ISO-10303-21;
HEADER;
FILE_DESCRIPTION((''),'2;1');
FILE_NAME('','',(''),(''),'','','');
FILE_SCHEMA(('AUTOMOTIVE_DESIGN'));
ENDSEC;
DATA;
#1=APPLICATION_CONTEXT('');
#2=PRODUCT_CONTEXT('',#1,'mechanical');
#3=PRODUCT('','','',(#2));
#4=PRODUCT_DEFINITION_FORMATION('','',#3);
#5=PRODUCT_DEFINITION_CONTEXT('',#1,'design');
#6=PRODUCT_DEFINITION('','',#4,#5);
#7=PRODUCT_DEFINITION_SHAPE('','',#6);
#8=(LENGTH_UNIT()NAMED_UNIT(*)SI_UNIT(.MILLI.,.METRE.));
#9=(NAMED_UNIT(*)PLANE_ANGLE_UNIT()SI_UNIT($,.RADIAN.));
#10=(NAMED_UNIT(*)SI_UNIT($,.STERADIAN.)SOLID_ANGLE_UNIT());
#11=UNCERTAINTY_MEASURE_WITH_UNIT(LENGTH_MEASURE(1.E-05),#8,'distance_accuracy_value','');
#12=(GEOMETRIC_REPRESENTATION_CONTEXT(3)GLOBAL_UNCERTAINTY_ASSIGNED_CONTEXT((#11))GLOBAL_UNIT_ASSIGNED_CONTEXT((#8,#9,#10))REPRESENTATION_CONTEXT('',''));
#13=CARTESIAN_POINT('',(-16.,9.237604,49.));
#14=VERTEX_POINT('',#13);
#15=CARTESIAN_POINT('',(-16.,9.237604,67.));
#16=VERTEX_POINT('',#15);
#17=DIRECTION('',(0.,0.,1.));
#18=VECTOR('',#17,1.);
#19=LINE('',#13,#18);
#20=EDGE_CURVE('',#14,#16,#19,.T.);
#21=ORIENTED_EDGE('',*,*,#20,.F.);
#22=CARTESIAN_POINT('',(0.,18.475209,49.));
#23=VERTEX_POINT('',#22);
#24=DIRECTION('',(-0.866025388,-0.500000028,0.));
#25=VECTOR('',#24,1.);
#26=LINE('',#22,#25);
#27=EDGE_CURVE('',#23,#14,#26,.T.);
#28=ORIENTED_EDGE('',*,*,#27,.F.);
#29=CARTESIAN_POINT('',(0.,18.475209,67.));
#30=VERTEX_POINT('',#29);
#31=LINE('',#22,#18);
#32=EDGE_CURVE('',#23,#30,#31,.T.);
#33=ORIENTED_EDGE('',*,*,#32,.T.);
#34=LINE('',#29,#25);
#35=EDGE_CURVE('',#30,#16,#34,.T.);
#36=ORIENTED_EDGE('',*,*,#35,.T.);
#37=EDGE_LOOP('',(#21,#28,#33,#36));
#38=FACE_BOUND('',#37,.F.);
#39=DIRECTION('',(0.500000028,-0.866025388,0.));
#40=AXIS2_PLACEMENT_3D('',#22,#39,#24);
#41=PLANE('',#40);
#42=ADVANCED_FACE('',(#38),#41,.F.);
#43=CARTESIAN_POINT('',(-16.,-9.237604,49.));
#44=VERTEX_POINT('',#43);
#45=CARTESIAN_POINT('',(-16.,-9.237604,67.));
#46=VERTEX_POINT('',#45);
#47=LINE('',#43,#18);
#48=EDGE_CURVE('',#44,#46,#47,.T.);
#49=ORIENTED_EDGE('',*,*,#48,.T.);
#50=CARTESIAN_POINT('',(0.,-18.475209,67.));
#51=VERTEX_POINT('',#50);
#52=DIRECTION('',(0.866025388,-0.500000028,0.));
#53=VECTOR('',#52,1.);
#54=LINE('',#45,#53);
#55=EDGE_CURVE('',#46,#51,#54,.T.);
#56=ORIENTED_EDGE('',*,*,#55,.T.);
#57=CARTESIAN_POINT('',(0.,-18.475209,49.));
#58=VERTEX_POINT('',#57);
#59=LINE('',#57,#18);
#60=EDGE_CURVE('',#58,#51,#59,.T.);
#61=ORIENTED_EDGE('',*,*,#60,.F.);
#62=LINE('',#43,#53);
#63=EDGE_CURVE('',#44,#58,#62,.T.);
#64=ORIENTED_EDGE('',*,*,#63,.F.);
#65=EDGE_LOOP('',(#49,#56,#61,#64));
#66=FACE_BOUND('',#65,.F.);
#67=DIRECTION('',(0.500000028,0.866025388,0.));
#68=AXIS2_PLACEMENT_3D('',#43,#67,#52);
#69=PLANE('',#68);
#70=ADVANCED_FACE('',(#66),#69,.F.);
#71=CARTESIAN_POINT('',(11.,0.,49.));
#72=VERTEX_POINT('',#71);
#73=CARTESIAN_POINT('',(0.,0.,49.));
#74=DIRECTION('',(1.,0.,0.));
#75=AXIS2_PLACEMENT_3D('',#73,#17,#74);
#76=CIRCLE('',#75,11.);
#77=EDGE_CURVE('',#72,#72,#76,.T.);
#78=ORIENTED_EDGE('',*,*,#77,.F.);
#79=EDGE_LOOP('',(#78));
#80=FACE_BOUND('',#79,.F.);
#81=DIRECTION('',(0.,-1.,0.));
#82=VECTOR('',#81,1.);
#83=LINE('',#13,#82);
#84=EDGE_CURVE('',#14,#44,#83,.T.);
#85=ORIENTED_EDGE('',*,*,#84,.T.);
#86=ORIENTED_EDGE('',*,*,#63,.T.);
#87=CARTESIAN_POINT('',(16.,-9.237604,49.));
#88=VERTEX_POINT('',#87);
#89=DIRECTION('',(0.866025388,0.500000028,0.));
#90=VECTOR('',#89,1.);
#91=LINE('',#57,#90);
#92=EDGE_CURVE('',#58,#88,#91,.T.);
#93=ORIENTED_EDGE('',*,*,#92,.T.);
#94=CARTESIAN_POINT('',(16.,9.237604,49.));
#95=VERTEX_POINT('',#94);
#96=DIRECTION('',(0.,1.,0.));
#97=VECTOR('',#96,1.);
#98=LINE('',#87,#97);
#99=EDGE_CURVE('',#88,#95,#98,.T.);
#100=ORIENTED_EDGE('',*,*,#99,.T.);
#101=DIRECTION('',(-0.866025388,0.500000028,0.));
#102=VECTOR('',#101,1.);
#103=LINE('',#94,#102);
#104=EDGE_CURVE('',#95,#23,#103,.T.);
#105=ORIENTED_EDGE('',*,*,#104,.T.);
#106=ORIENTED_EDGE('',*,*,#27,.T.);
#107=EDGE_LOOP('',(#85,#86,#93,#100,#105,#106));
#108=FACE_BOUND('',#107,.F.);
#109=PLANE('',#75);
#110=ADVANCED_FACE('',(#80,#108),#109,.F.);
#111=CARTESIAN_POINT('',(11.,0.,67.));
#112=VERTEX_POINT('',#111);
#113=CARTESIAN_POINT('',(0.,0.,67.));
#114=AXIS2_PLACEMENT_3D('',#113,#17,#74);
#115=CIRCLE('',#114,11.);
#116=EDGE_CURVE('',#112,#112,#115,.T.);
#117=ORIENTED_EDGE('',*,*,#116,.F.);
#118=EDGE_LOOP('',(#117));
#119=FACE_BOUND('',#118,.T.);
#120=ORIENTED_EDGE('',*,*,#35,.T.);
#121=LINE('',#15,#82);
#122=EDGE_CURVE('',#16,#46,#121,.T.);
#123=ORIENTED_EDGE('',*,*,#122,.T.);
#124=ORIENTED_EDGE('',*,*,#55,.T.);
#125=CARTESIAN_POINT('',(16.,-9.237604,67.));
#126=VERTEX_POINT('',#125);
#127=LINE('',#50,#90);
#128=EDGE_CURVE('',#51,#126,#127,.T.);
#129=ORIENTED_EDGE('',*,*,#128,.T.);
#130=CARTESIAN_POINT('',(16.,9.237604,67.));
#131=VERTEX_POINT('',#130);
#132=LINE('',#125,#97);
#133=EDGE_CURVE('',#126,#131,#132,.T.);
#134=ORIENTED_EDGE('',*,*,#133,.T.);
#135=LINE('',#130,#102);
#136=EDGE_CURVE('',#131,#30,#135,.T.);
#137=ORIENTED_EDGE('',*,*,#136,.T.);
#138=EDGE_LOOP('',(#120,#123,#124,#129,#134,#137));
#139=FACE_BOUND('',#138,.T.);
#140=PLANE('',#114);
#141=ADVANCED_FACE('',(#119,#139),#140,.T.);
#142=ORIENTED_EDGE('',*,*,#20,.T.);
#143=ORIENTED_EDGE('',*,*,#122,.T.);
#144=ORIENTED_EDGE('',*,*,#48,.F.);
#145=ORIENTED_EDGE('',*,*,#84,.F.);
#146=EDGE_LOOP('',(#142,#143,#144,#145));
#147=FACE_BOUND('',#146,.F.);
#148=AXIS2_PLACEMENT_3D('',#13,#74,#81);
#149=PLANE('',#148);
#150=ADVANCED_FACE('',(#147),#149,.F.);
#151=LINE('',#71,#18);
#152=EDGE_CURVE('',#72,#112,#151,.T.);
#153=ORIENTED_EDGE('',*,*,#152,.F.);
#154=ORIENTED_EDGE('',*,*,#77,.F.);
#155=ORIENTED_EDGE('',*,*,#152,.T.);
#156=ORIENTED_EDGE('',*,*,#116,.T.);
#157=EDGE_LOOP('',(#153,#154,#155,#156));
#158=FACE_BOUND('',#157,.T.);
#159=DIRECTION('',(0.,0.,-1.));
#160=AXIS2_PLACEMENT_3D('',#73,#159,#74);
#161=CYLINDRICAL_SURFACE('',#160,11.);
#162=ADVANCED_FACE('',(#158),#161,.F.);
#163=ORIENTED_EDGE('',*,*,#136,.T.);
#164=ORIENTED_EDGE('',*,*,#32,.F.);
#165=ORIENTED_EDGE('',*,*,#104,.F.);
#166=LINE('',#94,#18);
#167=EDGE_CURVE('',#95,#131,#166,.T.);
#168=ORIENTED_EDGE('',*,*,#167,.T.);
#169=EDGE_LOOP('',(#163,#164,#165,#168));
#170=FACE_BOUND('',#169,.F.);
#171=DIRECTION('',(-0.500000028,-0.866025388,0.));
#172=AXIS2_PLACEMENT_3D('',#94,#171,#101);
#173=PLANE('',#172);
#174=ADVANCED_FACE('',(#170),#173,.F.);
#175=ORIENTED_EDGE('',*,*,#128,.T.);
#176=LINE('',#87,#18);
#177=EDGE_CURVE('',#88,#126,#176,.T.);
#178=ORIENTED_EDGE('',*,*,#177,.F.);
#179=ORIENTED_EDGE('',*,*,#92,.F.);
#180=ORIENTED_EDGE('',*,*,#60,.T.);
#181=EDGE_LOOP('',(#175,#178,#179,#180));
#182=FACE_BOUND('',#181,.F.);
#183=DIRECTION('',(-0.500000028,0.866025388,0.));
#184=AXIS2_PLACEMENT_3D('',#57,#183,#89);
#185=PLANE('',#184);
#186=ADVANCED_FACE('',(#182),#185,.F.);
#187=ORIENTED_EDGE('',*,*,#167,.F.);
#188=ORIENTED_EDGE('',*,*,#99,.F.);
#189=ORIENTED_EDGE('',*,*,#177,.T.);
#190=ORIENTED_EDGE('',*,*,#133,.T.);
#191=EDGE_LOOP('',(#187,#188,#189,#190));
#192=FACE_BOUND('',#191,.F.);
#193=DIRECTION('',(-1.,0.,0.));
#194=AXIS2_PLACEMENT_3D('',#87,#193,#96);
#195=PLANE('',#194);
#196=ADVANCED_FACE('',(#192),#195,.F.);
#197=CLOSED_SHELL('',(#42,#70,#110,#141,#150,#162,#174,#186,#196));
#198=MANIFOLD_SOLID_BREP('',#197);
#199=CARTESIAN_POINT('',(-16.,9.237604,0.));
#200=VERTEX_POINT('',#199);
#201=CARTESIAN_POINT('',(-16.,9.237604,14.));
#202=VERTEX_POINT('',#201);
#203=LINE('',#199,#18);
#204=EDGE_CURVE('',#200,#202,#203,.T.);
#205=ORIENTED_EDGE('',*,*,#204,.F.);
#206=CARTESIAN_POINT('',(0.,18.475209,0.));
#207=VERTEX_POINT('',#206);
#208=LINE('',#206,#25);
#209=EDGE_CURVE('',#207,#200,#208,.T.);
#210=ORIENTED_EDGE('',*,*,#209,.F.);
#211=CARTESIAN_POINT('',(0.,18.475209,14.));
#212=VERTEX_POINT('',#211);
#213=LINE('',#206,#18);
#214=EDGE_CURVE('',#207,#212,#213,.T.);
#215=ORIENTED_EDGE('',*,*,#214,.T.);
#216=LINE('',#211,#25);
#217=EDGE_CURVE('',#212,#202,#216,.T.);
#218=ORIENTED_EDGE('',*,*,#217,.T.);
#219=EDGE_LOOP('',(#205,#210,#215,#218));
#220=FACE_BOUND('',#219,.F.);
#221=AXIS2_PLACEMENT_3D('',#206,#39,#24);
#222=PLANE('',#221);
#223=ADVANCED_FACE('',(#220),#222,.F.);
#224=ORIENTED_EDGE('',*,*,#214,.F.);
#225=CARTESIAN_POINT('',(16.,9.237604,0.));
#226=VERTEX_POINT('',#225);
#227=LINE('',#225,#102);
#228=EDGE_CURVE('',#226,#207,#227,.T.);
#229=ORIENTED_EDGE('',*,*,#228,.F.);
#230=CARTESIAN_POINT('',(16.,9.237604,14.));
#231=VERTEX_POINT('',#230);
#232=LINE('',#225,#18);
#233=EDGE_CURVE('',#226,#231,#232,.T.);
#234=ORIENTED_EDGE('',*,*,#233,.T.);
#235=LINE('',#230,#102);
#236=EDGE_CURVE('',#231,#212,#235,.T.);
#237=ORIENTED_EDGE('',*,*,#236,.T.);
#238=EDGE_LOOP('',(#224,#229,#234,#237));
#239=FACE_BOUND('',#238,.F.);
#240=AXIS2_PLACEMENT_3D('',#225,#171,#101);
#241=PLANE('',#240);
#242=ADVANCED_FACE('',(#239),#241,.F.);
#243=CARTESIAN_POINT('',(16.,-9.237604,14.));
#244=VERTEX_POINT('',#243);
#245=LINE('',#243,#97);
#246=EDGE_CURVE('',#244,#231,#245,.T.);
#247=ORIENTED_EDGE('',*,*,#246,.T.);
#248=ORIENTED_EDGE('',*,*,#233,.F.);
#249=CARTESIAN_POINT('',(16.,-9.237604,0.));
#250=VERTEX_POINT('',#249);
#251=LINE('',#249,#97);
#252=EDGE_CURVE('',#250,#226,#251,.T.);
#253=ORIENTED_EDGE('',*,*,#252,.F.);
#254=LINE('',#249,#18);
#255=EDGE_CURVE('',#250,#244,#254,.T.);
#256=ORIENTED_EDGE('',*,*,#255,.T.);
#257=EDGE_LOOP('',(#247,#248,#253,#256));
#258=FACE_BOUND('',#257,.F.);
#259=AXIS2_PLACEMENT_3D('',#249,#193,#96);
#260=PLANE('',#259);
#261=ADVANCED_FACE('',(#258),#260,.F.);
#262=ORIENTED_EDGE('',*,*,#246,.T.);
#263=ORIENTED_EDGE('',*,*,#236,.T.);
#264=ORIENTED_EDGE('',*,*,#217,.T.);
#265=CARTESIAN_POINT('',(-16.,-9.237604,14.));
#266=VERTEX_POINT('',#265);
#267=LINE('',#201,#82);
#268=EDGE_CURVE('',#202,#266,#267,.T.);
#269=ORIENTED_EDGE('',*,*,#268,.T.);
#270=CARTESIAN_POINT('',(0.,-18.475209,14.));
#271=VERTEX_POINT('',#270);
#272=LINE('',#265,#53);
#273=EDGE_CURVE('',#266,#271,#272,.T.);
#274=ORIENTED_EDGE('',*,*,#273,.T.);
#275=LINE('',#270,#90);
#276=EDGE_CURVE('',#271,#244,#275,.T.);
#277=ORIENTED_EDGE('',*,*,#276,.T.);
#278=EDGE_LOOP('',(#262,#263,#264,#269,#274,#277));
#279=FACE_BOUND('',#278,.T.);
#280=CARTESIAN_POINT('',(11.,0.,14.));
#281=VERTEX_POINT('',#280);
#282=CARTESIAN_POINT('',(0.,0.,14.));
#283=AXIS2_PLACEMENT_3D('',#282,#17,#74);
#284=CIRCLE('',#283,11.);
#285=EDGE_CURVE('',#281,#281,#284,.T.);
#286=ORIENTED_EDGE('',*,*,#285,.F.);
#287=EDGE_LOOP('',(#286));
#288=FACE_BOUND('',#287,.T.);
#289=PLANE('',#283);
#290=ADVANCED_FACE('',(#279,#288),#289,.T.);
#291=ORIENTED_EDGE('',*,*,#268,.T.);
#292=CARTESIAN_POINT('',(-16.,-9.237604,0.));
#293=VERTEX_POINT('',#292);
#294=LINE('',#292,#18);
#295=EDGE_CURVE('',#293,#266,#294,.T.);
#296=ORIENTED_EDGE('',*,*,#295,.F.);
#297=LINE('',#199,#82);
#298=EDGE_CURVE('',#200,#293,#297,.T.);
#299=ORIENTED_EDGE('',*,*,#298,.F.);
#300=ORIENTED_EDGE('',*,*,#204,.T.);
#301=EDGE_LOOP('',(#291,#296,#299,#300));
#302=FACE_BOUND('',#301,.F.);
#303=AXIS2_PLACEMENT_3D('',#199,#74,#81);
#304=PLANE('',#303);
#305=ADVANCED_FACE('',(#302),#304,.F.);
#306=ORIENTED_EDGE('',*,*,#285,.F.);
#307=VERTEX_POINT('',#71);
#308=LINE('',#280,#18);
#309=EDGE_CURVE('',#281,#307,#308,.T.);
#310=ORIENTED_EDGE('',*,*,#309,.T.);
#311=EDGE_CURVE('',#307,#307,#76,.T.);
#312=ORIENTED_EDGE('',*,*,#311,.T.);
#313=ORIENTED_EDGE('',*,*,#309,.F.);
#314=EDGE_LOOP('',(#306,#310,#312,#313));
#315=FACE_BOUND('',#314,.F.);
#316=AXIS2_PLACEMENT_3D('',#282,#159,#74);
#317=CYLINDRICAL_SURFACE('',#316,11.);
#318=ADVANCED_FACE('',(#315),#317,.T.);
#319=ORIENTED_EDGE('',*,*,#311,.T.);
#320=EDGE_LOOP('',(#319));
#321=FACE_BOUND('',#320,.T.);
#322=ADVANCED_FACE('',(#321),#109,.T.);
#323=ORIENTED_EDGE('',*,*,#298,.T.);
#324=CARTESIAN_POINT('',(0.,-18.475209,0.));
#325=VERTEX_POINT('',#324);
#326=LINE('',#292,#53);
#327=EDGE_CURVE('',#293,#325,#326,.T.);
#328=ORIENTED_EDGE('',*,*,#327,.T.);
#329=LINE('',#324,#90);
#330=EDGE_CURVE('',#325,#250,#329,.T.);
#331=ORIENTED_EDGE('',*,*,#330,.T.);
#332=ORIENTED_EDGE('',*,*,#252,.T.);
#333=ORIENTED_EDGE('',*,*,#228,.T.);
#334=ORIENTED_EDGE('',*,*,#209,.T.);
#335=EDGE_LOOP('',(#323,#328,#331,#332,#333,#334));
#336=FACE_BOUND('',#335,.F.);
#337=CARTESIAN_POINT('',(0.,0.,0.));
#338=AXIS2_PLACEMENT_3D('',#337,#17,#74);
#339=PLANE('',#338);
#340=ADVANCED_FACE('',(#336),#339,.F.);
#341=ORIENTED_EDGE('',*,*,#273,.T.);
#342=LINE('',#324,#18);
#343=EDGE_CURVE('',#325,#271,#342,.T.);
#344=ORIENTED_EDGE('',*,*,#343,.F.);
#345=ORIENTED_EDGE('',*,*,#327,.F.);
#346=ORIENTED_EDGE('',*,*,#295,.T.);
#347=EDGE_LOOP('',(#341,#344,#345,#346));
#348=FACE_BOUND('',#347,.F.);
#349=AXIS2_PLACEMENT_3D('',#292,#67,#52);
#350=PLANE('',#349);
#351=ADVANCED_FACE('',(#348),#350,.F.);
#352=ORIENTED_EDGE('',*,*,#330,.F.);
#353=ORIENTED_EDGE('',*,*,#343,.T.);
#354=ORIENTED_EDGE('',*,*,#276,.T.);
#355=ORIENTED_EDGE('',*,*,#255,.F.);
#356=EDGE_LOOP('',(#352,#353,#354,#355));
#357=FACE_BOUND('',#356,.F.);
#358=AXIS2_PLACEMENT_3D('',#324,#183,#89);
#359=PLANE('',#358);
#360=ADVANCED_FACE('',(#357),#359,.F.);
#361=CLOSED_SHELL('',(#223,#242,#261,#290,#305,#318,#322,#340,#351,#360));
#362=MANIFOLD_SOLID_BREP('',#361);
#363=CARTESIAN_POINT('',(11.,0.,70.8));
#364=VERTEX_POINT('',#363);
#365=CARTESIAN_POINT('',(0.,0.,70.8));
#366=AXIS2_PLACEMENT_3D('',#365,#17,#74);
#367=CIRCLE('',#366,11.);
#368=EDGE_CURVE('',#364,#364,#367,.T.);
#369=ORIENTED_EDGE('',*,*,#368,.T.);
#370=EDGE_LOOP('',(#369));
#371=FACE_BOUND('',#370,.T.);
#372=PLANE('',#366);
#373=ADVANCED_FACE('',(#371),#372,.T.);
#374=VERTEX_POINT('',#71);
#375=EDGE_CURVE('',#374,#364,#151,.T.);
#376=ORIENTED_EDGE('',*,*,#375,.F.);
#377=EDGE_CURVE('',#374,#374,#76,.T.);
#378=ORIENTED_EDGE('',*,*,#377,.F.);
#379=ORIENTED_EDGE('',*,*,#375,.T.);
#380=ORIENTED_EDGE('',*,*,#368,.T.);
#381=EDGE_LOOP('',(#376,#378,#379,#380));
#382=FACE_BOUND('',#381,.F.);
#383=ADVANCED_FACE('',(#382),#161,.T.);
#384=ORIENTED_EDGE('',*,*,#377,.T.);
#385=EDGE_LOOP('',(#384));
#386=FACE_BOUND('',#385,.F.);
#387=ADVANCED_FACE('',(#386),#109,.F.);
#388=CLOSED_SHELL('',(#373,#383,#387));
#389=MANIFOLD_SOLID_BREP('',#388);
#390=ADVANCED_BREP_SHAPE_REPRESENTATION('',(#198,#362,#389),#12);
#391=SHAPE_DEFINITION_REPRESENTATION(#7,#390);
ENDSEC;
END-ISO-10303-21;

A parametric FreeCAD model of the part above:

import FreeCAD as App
import Part
import Sketcher

V = App.Vector
Q = App.Units.Quantity


def add_polygon(sketch, points):
    """Adds a closed chain of lines whose ends are joined by coincident constraints."""
    first, n = sketch.GeometryCount, len(points)
    for a, b in zip(points, points[1:] + points[:1]):
        sketch.addGeometry(Part.LineSegment(App.Vector(*a, 0), App.Vector(*b, 0)), False)
    for i in range(n):
        sketch.addConstraint(Sketcher.Constraint("Coincident", first + i, 2, first + (i + 1) % n, 1))

doc = App.newDocument("Part")
body = doc.addObject("PartDesign::Body", "Body")

# Sketch on XY plane
sketch1 = body.newObject("Sketcher::SketchObject", "Sketch")
sketch1.AttachmentSupport = (doc.getObject("XY_Plane"), [""])
sketch1.MapMode = "FlatFace"
add_polygon(sketch1, [(16, -9.237604), (16, 9.237604), (0, 18.475209), (-16, 9.237604), (-16, -9.237604), (0, -18.475209)])  # lines 0-5
sketch1.addConstraint(Sketcher.Constraint("Vertical", 0))
sketch1.addConstraint(Sketcher.Constraint("Vertical", 3))
sketch1.addConstraint(Sketcher.Constraint("Symmetric", 0, 2, 3, 2, -1, 1))
sketch1.addConstraint(Sketcher.Constraint("Symmetric", 1, 2, 4, 2, -1, 1))
sketch1.addConstraint(Sketcher.Constraint("PointOnObject", 1, 2, -2))
sketch1.addConstraint(Sketcher.Constraint("Parallel", 2, 5))
sketch1.addConstraint(Sketcher.Constraint("Horizontal", 0, 2, 2, 2))
sketch1.addConstraint(Sketcher.Constraint("Angle", 1, Q("149.999998 deg")))
sketch1.addConstraint(Sketcher.Constraint("DistanceX", -1, 1, 0, 2, 16.0))
sketch1.addConstraint(Sketcher.Constraint("DistanceY", 0, 1, 0, 2, 18.475208))
pad1 = body.newObject("PartDesign::Pad", "Pad")
pad1.Profile = sketch1
pad1.Length = 14

# Sketch on XY plane
sketch2 = body.newObject("Sketcher::SketchObject", "Sketch001")
sketch2.AttachmentSupport = (doc.getObject("XY_Plane"), [""])
sketch2.MapMode = "FlatFace"
sketch2.AttachmentOffset = App.Placement(V(0, 0, 14), App.Rotation())
sketch2.addGeometry(Part.Circle(V(0, 0, 0), V(0, 0, 1), 11), False)
sketch2.addConstraint(Sketcher.Constraint("Coincident", 0, 3, -1, 1))
sketch2.addConstraint(Sketcher.Constraint("Diameter", 0, 22.0))
pad2 = body.newObject("PartDesign::Pad", "Pad001")
pad2.Profile = sketch2
pad2.Length = 35
body2 = doc.addObject("PartDesign::Body", "Body001")

# Sketch on XY plane
sketch3 = body2.newObject("Sketcher::SketchObject", "Sketch002")
sketch3.AttachmentSupport = (doc.getObject("XY_Plane001"), [""])
sketch3.MapMode = "FlatFace"
sketch3.AttachmentOffset = App.Placement(V(0, 0, 49), App.Rotation())
add_polygon(sketch3, [(16, -9.237604), (16, 9.237604), (0, 18.475209), (-16, 9.237604), (-16, -9.237604), (0, -18.475209)])  # lines 0-5
sketch3.addGeometry(Part.Circle(V(0, 0, 0), V(0, 0, 1), 11), False)  # 6
sketch3.addConstraint(Sketcher.Constraint("Vertical", 0))
sketch3.addConstraint(Sketcher.Constraint("Vertical", 3))
sketch3.addConstraint(Sketcher.Constraint("Coincident", 6, 3, -1, 1))
sketch3.addConstraint(Sketcher.Constraint("Symmetric", 0, 2, 3, 2, -1, 1))
sketch3.addConstraint(Sketcher.Constraint("Symmetric", 1, 2, 4, 2, -1, 1))
sketch3.addConstraint(Sketcher.Constraint("PointOnObject", 1, 2, -2))
sketch3.addConstraint(Sketcher.Constraint("Parallel", 2, 5))
sketch3.addConstraint(Sketcher.Constraint("Horizontal", 0, 2, 2, 2))
sketch3.addConstraint(Sketcher.Constraint("Diameter", 6, 22.0))
sketch3.addConstraint(Sketcher.Constraint("Angle", 1, Q("149.999998 deg")))
sketch3.addConstraint(Sketcher.Constraint("DistanceX", -1, 1, 0, 2, 16.0))
sketch3.addConstraint(Sketcher.Constraint("DistanceY", 0, 1, 0, 2, 18.475208))
pad3 = body2.newObject("PartDesign::Pad", "Pad002")
pad3.Profile = sketch3
pad3.Length = 18
body3 = doc.addObject("PartDesign::Body", "Body002")

# Sketch on XY plane
sketch4 = body3.newObject("Sketcher::SketchObject", "Sketch003")
sketch4.AttachmentSupport = (doc.getObject("XY_Plane002"), [""])
sketch4.MapMode = "FlatFace"
sketch4.AttachmentOffset = App.Placement(V(0, 0, 49), App.Rotation())
sketch4.addGeometry(Part.Circle(V(0, 0, 0), V(0, 0, 1), 11), False)
sketch4.addConstraint(Sketcher.Constraint("Coincident", 0, 3, -1, 1))
sketch4.addConstraint(Sketcher.Constraint("Diameter", 0, 22.0))
pad4 = body3.newObject("PartDesign::Pad", "Pad003")
pad4.Profile = sketch4
pad4.Length = 21.8

doc.recompute()
